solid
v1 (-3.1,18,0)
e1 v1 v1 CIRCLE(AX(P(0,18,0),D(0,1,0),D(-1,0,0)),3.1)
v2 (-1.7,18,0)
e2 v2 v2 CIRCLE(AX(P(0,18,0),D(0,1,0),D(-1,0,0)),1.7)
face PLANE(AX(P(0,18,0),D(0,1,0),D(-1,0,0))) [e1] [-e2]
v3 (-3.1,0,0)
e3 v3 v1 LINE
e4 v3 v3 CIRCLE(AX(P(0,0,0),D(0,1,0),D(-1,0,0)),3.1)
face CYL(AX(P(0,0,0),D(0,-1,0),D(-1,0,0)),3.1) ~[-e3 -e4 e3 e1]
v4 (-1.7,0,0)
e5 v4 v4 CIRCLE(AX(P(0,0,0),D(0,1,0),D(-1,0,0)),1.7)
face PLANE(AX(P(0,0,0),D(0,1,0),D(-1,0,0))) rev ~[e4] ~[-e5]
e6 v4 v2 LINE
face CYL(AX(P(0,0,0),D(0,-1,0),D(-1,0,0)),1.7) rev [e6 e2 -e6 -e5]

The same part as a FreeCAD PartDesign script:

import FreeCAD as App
import Part
import Sketcher

V = App.Vector

doc = App.newDocument("Part")
params = doc.addObject("Spreadsheet::Sheet", "Params")
for row, (alias, value) in enumerate([
    ("sketch1_diameter", "6.2 mm"),
    ("sketch1_diameter2", "3.4 mm"),
    ("pad1_length", "18 mm"),
], start=1):
    params.set(f"A{row}", alias)
    params.set(f"B{row}", "=" + value)
    params.setAlias(f"B{row}", alias)

body = doc.addObject("PartDesign::Body", "Body")

sketch1 = body.newObject("Sketcher::SketchObject", "Sketch")
sketch1.AttachmentSupport = (doc.getObject("XZ_Plane"), [""])
sketch1.MapMode = "FlatFace"
sketch1.addGeometry([
    Part.Circle(V(0, 0, 0), V(0, 0, 1), 3.1),
    Part.Circle(V(0, 0, 0), V(0, 0, 1), 1.7),
], False)
sketch1.addConstraint([
    Sketcher.Constraint("Coincident", 0, 3, -1, 1),
    Sketcher.Constraint("Coincident", 1, 3, -1, 1),
    Sketcher.Constraint("Diameter", 0, 6.2),
    Sketcher.Constraint("Diameter", 1, 3.4),
])
sketch1.setExpression("Constraints[2]", "Params.sketch1_diameter")
sketch1.setExpression("Constraints[3]", "Params.sketch1_diameter2")
pad1 = body.newObject("PartDesign::Pad", "Pad")
pad1.Profile = sketch1
pad1.setExpression("Length", "Params.pad1_length")
pad1.Reversed = True

doc.recompute()
